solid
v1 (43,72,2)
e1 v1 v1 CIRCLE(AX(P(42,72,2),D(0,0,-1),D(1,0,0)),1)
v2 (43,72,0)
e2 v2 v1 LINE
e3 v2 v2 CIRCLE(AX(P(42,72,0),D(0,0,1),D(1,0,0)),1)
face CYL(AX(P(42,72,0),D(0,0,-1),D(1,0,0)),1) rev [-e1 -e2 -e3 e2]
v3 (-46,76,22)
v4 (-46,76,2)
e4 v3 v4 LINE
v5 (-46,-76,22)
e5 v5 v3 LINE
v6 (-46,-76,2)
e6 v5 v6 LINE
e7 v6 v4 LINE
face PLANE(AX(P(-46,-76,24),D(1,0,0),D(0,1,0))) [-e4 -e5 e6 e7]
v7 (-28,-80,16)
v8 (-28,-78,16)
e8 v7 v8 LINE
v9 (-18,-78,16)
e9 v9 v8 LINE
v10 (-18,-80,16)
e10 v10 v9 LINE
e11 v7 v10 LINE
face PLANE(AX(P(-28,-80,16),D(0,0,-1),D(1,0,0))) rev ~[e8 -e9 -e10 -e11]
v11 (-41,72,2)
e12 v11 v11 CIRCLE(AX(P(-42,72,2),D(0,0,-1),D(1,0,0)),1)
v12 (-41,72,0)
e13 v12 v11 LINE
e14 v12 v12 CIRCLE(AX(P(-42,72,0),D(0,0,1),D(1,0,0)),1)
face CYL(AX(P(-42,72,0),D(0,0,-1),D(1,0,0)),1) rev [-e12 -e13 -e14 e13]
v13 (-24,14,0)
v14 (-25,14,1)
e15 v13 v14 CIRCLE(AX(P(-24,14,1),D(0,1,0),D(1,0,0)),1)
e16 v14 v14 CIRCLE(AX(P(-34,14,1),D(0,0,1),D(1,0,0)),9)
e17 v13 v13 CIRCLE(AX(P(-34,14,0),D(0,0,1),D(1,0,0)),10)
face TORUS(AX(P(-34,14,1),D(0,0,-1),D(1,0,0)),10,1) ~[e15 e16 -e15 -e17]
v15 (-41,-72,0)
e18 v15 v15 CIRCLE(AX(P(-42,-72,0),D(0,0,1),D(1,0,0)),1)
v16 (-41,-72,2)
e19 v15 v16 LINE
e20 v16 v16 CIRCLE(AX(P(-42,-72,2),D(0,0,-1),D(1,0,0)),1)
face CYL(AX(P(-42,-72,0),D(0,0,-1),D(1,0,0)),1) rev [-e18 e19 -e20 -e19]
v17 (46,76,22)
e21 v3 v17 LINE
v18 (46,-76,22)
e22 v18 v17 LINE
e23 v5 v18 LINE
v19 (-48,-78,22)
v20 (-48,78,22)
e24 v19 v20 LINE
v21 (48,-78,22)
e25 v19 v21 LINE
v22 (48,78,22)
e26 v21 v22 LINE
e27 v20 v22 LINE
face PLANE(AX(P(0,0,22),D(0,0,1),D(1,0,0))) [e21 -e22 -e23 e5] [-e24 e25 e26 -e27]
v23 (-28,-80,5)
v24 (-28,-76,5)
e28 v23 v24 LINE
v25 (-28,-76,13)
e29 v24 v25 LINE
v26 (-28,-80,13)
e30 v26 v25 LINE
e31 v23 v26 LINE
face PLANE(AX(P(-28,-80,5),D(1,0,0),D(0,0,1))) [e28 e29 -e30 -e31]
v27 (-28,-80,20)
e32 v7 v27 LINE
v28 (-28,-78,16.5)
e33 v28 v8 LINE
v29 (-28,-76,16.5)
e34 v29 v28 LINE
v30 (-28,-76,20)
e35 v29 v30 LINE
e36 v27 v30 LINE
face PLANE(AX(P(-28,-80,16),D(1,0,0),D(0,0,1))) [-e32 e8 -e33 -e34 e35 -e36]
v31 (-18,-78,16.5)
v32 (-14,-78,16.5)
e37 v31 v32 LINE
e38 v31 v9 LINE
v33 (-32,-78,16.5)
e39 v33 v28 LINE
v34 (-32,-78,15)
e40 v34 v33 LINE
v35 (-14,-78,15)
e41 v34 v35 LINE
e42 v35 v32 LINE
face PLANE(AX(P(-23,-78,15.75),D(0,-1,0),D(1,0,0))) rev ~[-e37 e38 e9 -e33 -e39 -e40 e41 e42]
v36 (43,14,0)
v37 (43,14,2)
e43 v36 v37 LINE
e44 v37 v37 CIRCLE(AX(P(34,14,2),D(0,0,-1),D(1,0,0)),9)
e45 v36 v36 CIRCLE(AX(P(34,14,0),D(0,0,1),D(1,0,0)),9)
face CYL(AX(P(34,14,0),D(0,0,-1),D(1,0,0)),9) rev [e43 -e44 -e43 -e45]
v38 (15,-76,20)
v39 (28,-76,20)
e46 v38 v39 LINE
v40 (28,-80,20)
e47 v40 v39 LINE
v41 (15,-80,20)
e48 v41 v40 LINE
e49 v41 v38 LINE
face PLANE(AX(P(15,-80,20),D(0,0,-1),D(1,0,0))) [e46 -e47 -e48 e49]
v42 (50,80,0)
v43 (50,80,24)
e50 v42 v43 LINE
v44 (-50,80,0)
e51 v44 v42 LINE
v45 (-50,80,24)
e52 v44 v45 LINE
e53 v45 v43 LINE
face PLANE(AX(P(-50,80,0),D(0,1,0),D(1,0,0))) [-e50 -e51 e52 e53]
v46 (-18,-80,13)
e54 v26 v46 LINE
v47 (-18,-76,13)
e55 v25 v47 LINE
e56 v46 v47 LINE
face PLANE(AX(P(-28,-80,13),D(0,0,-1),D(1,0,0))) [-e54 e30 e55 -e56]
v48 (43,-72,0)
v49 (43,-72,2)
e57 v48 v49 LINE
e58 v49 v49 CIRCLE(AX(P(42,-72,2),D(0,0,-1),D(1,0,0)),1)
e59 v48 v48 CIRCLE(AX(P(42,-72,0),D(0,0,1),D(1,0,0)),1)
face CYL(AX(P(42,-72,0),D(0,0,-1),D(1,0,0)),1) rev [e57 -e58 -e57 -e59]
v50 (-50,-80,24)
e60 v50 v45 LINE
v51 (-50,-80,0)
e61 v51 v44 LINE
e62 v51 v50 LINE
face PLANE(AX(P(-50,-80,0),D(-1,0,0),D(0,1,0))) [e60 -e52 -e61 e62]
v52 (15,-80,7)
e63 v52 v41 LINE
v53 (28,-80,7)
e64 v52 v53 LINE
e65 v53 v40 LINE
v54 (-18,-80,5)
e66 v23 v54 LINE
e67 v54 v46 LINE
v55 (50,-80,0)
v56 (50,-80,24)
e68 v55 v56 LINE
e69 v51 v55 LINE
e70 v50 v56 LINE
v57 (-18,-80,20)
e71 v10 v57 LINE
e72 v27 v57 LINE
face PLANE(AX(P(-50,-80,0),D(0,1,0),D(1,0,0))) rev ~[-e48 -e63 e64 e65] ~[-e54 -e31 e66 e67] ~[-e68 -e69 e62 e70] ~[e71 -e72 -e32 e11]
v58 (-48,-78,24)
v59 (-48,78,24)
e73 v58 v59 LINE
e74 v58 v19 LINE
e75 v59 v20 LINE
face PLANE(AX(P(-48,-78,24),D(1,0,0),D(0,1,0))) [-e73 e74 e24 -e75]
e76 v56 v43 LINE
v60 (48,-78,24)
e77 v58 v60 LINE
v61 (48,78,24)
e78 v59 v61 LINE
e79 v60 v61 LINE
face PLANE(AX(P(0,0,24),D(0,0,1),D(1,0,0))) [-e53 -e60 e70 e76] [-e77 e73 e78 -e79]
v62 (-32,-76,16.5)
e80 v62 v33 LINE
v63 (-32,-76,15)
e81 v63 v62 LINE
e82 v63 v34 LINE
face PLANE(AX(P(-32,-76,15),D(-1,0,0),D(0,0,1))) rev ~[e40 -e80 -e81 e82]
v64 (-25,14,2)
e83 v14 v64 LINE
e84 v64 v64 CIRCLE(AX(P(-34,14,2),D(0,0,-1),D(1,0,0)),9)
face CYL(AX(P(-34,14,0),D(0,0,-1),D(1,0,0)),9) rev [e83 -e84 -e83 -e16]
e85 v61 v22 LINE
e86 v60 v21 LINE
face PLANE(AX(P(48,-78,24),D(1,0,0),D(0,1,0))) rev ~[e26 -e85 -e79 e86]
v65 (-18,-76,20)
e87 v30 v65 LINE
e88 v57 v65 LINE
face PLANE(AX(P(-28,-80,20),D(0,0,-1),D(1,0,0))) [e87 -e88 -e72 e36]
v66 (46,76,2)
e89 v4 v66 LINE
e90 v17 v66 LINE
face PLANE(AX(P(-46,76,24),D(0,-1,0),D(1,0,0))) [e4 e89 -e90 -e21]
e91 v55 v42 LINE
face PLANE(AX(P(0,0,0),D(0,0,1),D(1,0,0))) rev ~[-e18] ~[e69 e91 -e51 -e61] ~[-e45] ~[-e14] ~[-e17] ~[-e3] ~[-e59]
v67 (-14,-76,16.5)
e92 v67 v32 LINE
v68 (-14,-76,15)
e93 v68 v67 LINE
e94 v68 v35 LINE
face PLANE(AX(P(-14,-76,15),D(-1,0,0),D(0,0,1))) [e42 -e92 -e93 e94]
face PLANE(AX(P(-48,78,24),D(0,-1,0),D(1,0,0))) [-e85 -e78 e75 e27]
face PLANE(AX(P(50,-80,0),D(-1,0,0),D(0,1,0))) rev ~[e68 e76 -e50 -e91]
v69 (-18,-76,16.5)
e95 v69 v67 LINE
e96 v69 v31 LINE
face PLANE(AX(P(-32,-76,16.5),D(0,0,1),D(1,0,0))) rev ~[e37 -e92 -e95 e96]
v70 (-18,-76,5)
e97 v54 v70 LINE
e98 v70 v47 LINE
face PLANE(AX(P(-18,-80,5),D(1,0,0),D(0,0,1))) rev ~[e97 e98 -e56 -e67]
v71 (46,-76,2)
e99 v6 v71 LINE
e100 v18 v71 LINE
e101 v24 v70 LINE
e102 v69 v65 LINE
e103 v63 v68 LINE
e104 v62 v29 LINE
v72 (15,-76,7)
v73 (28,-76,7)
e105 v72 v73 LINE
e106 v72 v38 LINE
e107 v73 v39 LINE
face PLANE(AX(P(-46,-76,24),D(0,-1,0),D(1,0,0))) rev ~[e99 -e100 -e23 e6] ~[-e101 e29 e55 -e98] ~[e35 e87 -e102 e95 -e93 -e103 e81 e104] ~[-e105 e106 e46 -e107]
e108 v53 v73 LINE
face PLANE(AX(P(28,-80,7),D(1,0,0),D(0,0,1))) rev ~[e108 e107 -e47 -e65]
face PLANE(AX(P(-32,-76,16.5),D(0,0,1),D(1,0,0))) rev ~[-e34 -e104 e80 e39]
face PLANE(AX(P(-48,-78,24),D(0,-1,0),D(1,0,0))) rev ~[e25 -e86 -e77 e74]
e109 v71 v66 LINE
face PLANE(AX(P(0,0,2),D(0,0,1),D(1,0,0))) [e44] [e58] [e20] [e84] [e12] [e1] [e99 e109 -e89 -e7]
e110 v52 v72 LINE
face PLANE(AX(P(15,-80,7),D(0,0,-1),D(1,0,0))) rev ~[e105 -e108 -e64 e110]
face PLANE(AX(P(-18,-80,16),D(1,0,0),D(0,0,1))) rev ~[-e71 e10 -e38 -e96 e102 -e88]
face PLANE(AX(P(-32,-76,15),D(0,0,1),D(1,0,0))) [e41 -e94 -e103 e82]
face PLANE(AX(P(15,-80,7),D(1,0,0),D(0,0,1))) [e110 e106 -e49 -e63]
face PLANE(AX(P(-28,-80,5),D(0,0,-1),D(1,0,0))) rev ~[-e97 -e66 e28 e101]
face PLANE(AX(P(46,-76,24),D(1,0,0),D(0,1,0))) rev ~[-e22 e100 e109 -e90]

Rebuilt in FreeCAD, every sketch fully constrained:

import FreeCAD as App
import Part
import Sketcher

V = App.Vector


def edges_at(feature, points):
    """Names of the edges that pass closest to the given points."""
    edges = feature.Shape.Edges
    near = lambda p: min(range(len(edges)), key=lambda i: edges[i].distToShape(Part.Vertex(*p))[0])
    return sorted({f"Edge{near(p) + 1}" for p in points})


def add_polygon(sketch, points):
    """Adds a closed chain of lines whose ends are joined by coincident constraints."""
    first, n = sketch.GeometryCount, len(points)
    for a, b in zip(points, points[1:] + points[:1]):
        sketch.addGeometry(Part.LineSegment(App.Vector(*a, 0), App.Vector(*b, 0)), False)
    for i in range(n):
        sketch.addConstraint(Sketcher.Constraint("Coincident", first + i, 2, first + (i + 1) % n, 1))

doc = App.newDocument("Part")
body = doc.addObject("PartDesign::Body", "Body")

# Sketch on XY plane
sketch1 = body.newObject("Sketcher::SketchObject", "Sketch")
sketch1.AttachmentSupport = (doc.getObject("XY_Plane"), [""])
sketch1.MapMode = "FlatFace"
add_polygon(sketch1, [(-50, 80), (-50, -80), (50, -80), (50, 80)])  # lines 0-3
sketch1.addConstraint([
    Sketcher.Constraint("Vertical", 0),
    Sketcher.Constraint("Horizontal", 1),
    Sketcher.Constraint("Vertical", 2),
    Sketcher.Constraint("Horizontal", 3),
    Sketcher.Constraint("Symmetric", 0, 2, 2, 2, -1, 1),
    Sketcher.Constraint("DistanceX", 1, 1, 1, 2, 100.0),
    Sketcher.Constraint("DistanceY", 0, 2, 0, 1, 160.0),
])
pad1 = body.newObject("PartDesign::Pad", "Pad")
pad1.Profile = sketch1
pad1.Length = 24

# Sketch on XY plane
sketch2 = body.newObject("Sketcher::SketchObject", "Sketch001")
sketch2.AttachmentSupport = (doc.getObject("XY_Plane"), [""])
sketch2.MapMode = "FlatFace"
sketch2.AttachmentOffset = App.Placement(V(0, 0, 24), App.Rotation())
add_polygon(sketch2, [(-48, 78), (-48, -78), (48, -78), (48, 78)])  # lines 0-3
sketch2.addConstraint([
    Sketcher.Constraint("Vertical", 0),
    Sketcher.Constraint("Horizontal", 1),
    Sketcher.Constraint("Vertical", 2),
    Sketcher.Constraint("Horizontal", 3),
    Sketcher.Constraint("Symmetric", 0, 2, 2, 2, -1, 1),
    Sketcher.Constraint("DistanceX", 1, 1, 1, 2, 96.0),
    Sketcher.Constraint("DistanceY", 0, 2, 0, 1, 156.0),
])
pocket1 = body.newObject("PartDesign::Pocket", "Pocket")
pocket1.Profile = sketch2
pocket1.Length = 2

# Sketch on XY plane
sketch3 = body.newObject("Sketcher::SketchObject", "Sketch002")
sketch3.AttachmentSupport = (doc.getObject("XY_Plane"), [""])
sketch3.MapMode = "FlatFace"
sketch3.AttachmentOffset = App.Placement(V(0, 0, 24), App.Rotation())
add_polygon(sketch3, [(-46, 76), (-46, -76), (46, -76), (46, 76)])  # lines 0-3
sketch3.addConstraint([
    Sketcher.Constraint("Vertical", 0),
    Sketcher.Constraint("Horizontal", 1),
    Sketcher.Constraint("Vertical", 2),
    Sketcher.Constraint("Horizontal", 3),
    Sketcher.Constraint("Symmetric", 0, 2, 2, 2, -1, 1),
    Sketcher.Constraint("DistanceX", 1, 1, 1, 2, 92.0),
    Sketcher.Constraint("DistanceY", 0, 2, 0, 1, 152.0),
])
pocket2 = body.newObject("PartDesign::Pocket", "Pocket001")
pocket2.Profile = sketch3
pocket2.Length = 22

# Sketch on XY plane
sketch4 = body.newObject("Sketcher::SketchObject", "Sketch003")
sketch4.AttachmentSupport = (doc.getObject("XY_Plane"), [""])
sketch4.MapMode = "FlatFace"
sketch4.addGeometry([
    Part.Circle(V(42, 72, 0), V(0, 0, 1), 1),
    Part.Circle(V(-42, 72, 0), V(0, 0, 1), 1),
    Part.Circle(V(42, -72, 0), V(0, 0, 1), 1),
    Part.Circle(V(-42, -72, 0), V(0, 0, 1), 1),
], False)
sketch4.addConstraint([
    Sketcher.Constraint("Equal", 0, 1),
    Sketcher.Constraint("Equal", 1, 2),
    Sketcher.Constraint("Equal", 2, 3),
    Sketcher.Constraint("Symmetric", 1, 3, 2, 3, -1, 1),
    Sketcher.Constraint("Symmetric", 0, 3, 3, 3, -1, 1),
    Sketcher.Constraint("Symmetric", 0, 3, 1, 3, -2),
    Sketcher.Constraint("Diameter", 0, 2.0),
    Sketcher.Constraint("DistanceX", -1, 1, 0, 3, 42.0),
    Sketcher.Constraint("DistanceY", -1, 1, 0, 3, 72.0),
])
pocket3 = body.newObject("PartDesign::Pocket", "Pocket002")
pocket3.Profile = sketch4
pocket3.Type = "ThroughAll"
pocket3.Reversed = True

# Sketch on XZ plane
sketch5 = body.newObject("Sketcher::SketchObject", "Sketch004")
sketch5.AttachmentSupport = (doc.getObject("XZ_Plane"), [""])
sketch5.MapMode = "FlatFace"
sketch5.AttachmentOffset = App.Placement(V(0, 0, 80), App.Rotation())
add_polygon(sketch5, [(15, 20), (15, 7), (28, 7), (28, 20)])  # lines 0-3
add_polygon(sketch5, [(-28, 20), (-28, 16), (-18, 16), (-18, 20)])  # lines 4-7
add_polygon(sketch5, [(-28, 13), (-28, 5), (-18, 5), (-18, 13)])  # lines 8-11
sketch5.addConstraint([
    Sketcher.Constraint("Vertical", 0),
    Sketcher.Constraint("Horizontal", 1),
    Sketcher.Constraint("Vertical", 2),
    Sketcher.Constraint("Horizontal", 3),
    Sketcher.Constraint("Vertical", 4),
    Sketcher.Constraint("Horizontal", 5),
    Sketcher.Constraint("Vertical", 6),
    Sketcher.Constraint("Horizontal", 7),
    Sketcher.Constraint("Vertical", 8),
    Sketcher.Constraint("Horizontal", 9),
    Sketcher.Constraint("Vertical", 10),
    Sketcher.Constraint("Horizontal", 11),
    Sketcher.Constraint("Symmetric", 2, 2, 7, 2, -2),
    Sketcher.Constraint("Vertical", 7, 2, 8, 2),
    Sketcher.Constraint("Vertical", 6, 2, 9, 2),
    Sketcher.Constraint("Equal", 3, 0),
    Sketcher.Constraint("DistanceX", 1, 1, 1, 2, 13.0),
    Sketcher.Constraint("DistanceX", 5, 1, 5, 2, 10.0),
    Sketcher.Constraint("DistanceY", 4, 2, 4, 1, 4.0),
    Sketcher.Constraint("DistanceY", 8, 2, 8, 1, 8.0),
    Sketcher.Constraint("DistanceX", -1, 1, 0, 2, 15.0),
    Sketcher.Constraint("DistanceY", -1, 1, 0, 2, 7.0),
    Sketcher.Constraint("DistanceY", -1, 1, 8, 2, 5.0),
])
pocket4 = body.newObject("PartDesign::Pocket", "Pocket003")
pocket4.Profile = sketch5
pocket4.Length = 10

# Sketch on XZ plane
sketch6 = body.newObject("Sketcher::SketchObject", "Sketch005")
sketch6.AttachmentSupport = (doc.getObject("XZ_Plane"), [""])
sketch6.MapMode = "FlatFace"
sketch6.AttachmentOffset = App.Placement(V(0, 0, 76), App.Rotation())
add_polygon(sketch6, [(-32, 16.5), (-32, 15), (-14, 15), (-14, 16.5)])  # lines 0-3
sketch6.addConstraint([
    Sketcher.Constraint("Vertical", 0),
    Sketcher.Constraint("Horizontal", 1),
    Sketcher.Constraint("Vertical", 2),
    Sketcher.Constraint("Horizontal", 3),
    Sketcher.Constraint("DistanceX", 1, 1, 1, 2, 18.0),
    Sketcher.Constraint("DistanceY", 0, 2, 0, 1, 1.5),
    Sketcher.Constraint("DistanceX", 0, 2, -1, 1, 32.0),
    Sketcher.Constraint("DistanceY", -1, 1, 0, 2, 15.0),
])
pocket5 = body.newObject("PartDesign::Pocket", "Pocket004")
pocket5.Profile = sketch6
pocket5.Length = 2
pocket5.Reversed = True

# Sketch on XY plane
sketch7 = body.newObject("Sketcher::SketchObject", "Sketch006")
sketch7.AttachmentSupport = (doc.getObject("XY_Plane"), [""])
sketch7.MapMode = "FlatFace"
sketch7.addGeometry([
    Part.Circle(V(34, 14, 0), V(0, 0, 1), 9),
    Part.Circle(V(-34, 14, 0), V(0, 0, 1), 9),
], False)
sketch7.addConstraint([
    Sketcher.Constraint("Equal", 0, 1),
    Sketcher.Constraint("Symmetric", 0, 3, 1, 3, -2),
    Sketcher.Constraint("Diameter", 0, 18.0),
    Sketcher.Constraint("DistanceX", -1, 1, 0, 3, 34.0),
    Sketcher.Constraint("DistanceY", -1, 1, 0, 3, 14.0),
])
pocket6 = body.newObject("PartDesign::Pocket", "Pocket005")
pocket6.Profile = sketch7
pocket6.Length = 5
pocket6.Reversed = True
doc.recompute()

fillet = body.newObject("PartDesign::Fillet", "Fillet")
fillet.Base = (pocket6, edges_at(pocket6, [(-43, 14, 0)]))
fillet.Radius = 1

doc.recompute()
